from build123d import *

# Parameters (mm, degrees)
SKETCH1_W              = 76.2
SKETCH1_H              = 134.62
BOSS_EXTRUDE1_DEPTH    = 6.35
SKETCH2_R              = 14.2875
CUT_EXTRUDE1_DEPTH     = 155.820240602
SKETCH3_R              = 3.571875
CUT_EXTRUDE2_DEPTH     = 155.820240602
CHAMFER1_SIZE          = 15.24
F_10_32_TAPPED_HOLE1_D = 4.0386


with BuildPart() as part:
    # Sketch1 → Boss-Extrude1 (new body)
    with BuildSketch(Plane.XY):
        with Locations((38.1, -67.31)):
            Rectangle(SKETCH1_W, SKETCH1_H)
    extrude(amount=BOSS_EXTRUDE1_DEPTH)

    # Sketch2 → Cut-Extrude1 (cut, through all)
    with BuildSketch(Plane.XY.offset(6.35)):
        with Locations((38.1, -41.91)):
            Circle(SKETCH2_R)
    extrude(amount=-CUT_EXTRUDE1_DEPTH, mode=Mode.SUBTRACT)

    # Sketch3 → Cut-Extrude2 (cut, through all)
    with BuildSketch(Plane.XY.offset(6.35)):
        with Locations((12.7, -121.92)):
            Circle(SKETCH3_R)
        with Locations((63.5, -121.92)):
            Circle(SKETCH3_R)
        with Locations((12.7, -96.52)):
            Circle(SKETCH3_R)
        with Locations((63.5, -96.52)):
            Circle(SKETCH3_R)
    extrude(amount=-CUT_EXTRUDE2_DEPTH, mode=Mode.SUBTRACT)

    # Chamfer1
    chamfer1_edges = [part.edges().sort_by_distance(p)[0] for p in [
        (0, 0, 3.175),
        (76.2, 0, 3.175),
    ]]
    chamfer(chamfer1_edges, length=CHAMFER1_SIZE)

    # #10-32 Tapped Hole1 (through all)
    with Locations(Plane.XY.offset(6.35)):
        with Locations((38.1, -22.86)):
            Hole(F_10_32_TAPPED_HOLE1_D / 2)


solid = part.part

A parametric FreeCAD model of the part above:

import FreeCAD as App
import Part
import Sketcher
Q = App.Units.Quantity


def edges_at(feature, points):
    """Names of the edges that pass closest to the given points."""
    edges = feature.Shape.Edges
    near = lambda p: min(range(len(edges)), key=lambda i: edges[i].distToShape(Part.Vertex(*p))[0])
    return sorted({f"Edge{near(p) + 1}" for p in points})

doc = App.newDocument("Part")
body = doc.addObject("PartDesign::Body", "Body")

# Sketch on XY plane
sketch1 = doc.addObject("Sketcher::SketchObject", "Sketch")
body.addObject(sketch1)
sketch1.AttachmentSupport = (doc.XY_Plane, [""])
sketch1.MapMode = "FlatFace"
sketch1.addGeometry(Part.LineSegment(App.Vector(0, 0, 0), App.Vector(0, -135, 0)), False)
sketch1.addGeometry(Part.LineSegment(App.Vector(0, -135, 0), App.Vector(76, -135, 0)), False)
sketch1.addGeometry(Part.LineSegment(App.Vector(76, -135, 0), App.Vector(76, 0, 0)), False)
sketch1.addGeometry(Part.LineSegment(App.Vector(76, 0, 0), App.Vector(0, 0, 0)), False)
sketch1.addConstraint(Sketcher.Constraint("Coincident", 0, 2, 1, 1))
sketch1.addConstraint(Sketcher.Constraint("Coincident", 1, 2, 2, 1))
sketch1.addConstraint(Sketcher.Constraint("Coincident", 2, 2, 3, 1))
sketch1.addConstraint(Sketcher.Constraint("Coincident", 3, 2, 0, 1))
sketch1.addConstraint(Sketcher.Constraint("Vertical", 0))
sketch1.addConstraint(Sketcher.Constraint("Horizontal", 1))
sketch1.addConstraint(Sketcher.Constraint("Vertical", 2))
sketch1.addConstraint(Sketcher.Constraint("Horizontal", 3))
sketch1.addConstraint(Sketcher.Constraint("Coincident", 3, 2, -1, 1))
sketch1.addConstraint(Sketcher.Constraint("DistanceX", 1, 1, 1, 2, Q("3 in")))
sketch1.addConstraint(Sketcher.Constraint("DistanceY", 0, 2, 0, 1, Q("5.3 in")))
pad1 = doc.addObject("PartDesign::Pad", "Pad")
body.addObject(pad1)
pad1.Profile = sketch1
pad1.Length = Q("0.25 in")

# Sketch on XY plane
sketch2 = doc.addObject("Sketcher::SketchObject", "Sketch001")
body.addObject(sketch2)
sketch2.AttachmentSupport = (doc.XY_Plane, [""])
sketch2.MapMode = "FlatFace"
sketch2.AttachmentOffset = App.Placement(App.Vector(0, 0, 0.25 * 25.4), App.Rotation())
sketch2.addGeometry(Part.Circle(App.Vector(38, -42, 0), App.Vector(0, 0, 1), 14), False)
sketch2.addConstraint(Sketcher.Constraint("Diameter", 0, Q("1.125 in")))
sketch2.addConstraint(Sketcher.Constraint("DistanceX", -1, 1, 0, 3, Q("1.5 in")))
sketch2.addConstraint(Sketcher.Constraint("DistanceY", 0, 3, -1, 1, Q("1.65 in")))
pocket1 = doc.addObject("PartDesign::Pocket", "Pocket")
body.addObject(pocket1)
pocket1.Profile = sketch2
pocket1.Type = "ThroughAll"

# Sketch on XY plane
sketch3 = doc.addObject("Sketcher::SketchObject", "Sketch002")
body.addObject(sketch3)
sketch3.AttachmentSupport = (doc.XY_Plane, [""])
sketch3.MapMode = "FlatFace"
sketch3.AttachmentOffset = App.Placement(App.Vector(0, 0, 0.25 * 25.4), App.Rotation())
sketch3.addGeometry(Part.Circle(App.Vector(12.7, -121.9, 0), App.Vector(0, 0, 1), 3.6), False)
sketch3.addGeometry(Part.Circle(App.Vector(63.5, -121.9, 0), App.Vector(0, 0, 1), 3.6), False)
sketch3.addGeometry(Part.Circle(App.Vector(12.7, -96.5, 0), App.Vector(0, 0, 1), 3.6), False)
sketch3.addGeometry(Part.Circle(App.Vector(63.5, -96.5, 0), App.Vector(0, 0, 1), 3.6), False)
sketch3.addConstraint(Sketcher.Constraint("Equal", 0, 1))
sketch3.addConstraint(Sketcher.Constraint("Equal", 1, 2))
sketch3.addConstraint(Sketcher.Constraint("Equal", 2, 3))
sketch3.addConstraint(Sketcher.Constraint("Horizontal", 0, 3, 1, 3))
sketch3.addConstraint(Sketcher.Constraint("Horizontal", 2, 3, 3, 3))
sketch3.addConstraint(Sketcher.Constraint("Vertical", 0, 3, 2, 3))
sketch3.addConstraint(Sketcher.Constraint("Vertical", 1, 3, 3, 3))
sketch3.addConstraint(Sketcher.Constraint("Diameter", 0, Q("0.28125 in")))
sketch3.addConstraint(Sketcher.Constraint("DistanceX", 0, 3, 1, 3, Q("2 in")))
sketch3.addConstraint(Sketcher.Constraint("DistanceY", 0, 3, 2, 3, Q("1 in")))
sketch3.addConstraint(Sketcher.Constraint("DistanceX", -1, 1, 0, 3, Q("0.5 in")))
sketch3.addConstraint(Sketcher.Constraint("DistanceY", 0, 3, -1, 1, Q("4.8 in")))
pocket2 = doc.addObject("PartDesign::Pocket", "Pocket001")
body.addObject(pocket2)
pocket2.Profile = sketch3
pocket2.Type = "ThroughAll"
doc.recompute()

chamfer = doc.addObject("PartDesign::Chamfer", "Chamfer")
body.addObject(chamfer)
chamfer.Base = (pocket2, edges_at(pocket2, [(0, 0, 3.175), (76.2, 0, 3.175)]))
chamfer.Size = Q("0.6 in")

# Sketch on XY plane
sketch4 = doc.addObject("Sketcher::SketchObject", "Sketch003")
body.addObject(sketch4)
sketch4.AttachmentSupport = (doc.XY_Plane, [""])
sketch4.MapMode = "FlatFace"
sketch4.AttachmentOffset = App.Placement(App.Vector(0, 0, 0.25 * 25.4), App.Rotation())
sketch4.addGeometry(Part.Circle(App.Vector(38.1, -22.9, 0), App.Vector(0, 0, 1), 2), False)
sketch4.addConstraint(Sketcher.Constraint("Diameter", 0, Q("0.159 in")))
sketch4.addConstraint(Sketcher.Constraint("DistanceX", -1, 1, 0, 3, Q("1.5 in")))
sketch4.addConstraint(Sketcher.Constraint("DistanceY", 0, 3, -1, 1, Q("0.9 in")))
doc.recompute()
hole = doc.addObject("PartDesign::Hole", "Hole")
body.addObject(hole)
hole.Profile = sketch4
hole.ThreadType = "None"
hole.Diameter = Q("0.159 in")
hole.DepthType = "ThroughAll"

doc.recompute()
